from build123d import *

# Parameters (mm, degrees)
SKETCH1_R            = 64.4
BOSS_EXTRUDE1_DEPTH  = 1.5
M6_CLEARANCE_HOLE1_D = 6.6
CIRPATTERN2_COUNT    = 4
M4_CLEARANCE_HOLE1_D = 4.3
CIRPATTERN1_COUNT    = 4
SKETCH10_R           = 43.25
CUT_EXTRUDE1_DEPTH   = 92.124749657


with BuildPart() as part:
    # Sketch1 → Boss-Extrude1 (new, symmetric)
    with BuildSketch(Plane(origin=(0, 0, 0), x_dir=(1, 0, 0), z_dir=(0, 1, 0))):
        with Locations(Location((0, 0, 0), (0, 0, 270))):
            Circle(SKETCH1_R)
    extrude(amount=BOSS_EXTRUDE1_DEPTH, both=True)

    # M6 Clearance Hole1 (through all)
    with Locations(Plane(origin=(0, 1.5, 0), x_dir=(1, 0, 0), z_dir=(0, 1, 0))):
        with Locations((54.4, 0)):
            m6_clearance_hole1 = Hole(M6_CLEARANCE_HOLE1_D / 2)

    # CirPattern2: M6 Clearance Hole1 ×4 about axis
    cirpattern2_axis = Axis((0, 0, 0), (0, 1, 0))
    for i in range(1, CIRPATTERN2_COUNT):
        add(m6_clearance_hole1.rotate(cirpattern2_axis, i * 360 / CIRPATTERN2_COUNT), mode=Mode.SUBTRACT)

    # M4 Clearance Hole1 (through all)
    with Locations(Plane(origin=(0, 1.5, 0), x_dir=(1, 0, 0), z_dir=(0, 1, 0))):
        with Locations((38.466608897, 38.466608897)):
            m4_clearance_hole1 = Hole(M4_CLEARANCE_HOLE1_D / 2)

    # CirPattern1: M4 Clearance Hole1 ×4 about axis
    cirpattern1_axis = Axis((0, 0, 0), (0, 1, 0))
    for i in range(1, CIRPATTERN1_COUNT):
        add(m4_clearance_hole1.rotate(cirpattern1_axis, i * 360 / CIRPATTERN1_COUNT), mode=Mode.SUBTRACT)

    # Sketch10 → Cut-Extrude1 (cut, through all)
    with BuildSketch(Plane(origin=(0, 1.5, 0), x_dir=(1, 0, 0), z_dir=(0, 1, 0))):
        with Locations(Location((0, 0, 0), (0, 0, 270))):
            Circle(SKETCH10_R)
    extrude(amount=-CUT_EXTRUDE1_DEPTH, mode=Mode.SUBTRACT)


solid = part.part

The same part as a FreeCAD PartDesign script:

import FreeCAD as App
import Part
import Sketcher
Q = App.Units.Quantity

doc = App.newDocument("Part")
body = doc.addObject("PartDesign::Body", "Body")

sketch1 = doc.addObject("Sketcher::SketchObject", "Sketch")
body.addObject(sketch1)
sketch1.AttachmentSupport = (doc.XZ_Plane, [""])
sketch1.MapMode = "FlatFace"
sketch1.addGeometry(Part.Circle(App.Vector(0, 0, 0), App.Vector(0, 0, 1), 64.4), False)
sketch1.addConstraint([
    Sketcher.Constraint("Coincident", 0, 3, -1, 1),
    Sketcher.Constraint("Diameter", 0, Q("128.8 mm")),
])
pad1 = doc.addObject("PartDesign::Pad", "Pad")
body.addObject(pad1)
pad1.Profile = sketch1
pad1.Length = 3
pad1.Midplane = True

sketch2 = doc.addObject("Sketcher::SketchObject", "Sketch001")
body.addObject(sketch2)
sketch2.AttachmentSupport = (doc.XZ_Plane, [""])
sketch2.MapMode = "FlatFace"
sketch2.AttachmentOffset = App.Placement(App.Vector(0, 0, -1.5), App.Rotation())
sketch2.addGeometry(Part.Circle(App.Vector(54.4, 0, 0), App.Vector(0, 0, 1), 3.3), False)
sketch2.addConstraint([
    Sketcher.Constraint("PointOnObject", 0, 3, -1),
    Sketcher.Constraint("Diameter", 0, Q("6.6 mm")),
    Sketcher.Constraint("DistanceX", -1, 1, 0, 3, Q("54.4 mm")),
])
doc.recompute()
hole = doc.addObject("PartDesign::Hole", "Hole")
body.addObject(hole)
hole.Profile = sketch2
hole.ThreadType = "None"
hole.Diameter = 6.6
hole.DepthType = "ThroughAll"
hole.Reversed = True
doc.recompute()

polarpattern = doc.addObject("PartDesign::PolarPattern", "PolarPattern")
body.addObject(polarpattern)
polarpattern.Originals = [hole]
polarpattern.Axis = (doc.Y_Axis, [""])
polarpattern.Angle = 360
polarpattern.Occurrences = 4
body.Tip = polarpattern

sketch3 = doc.addObject("Sketcher::SketchObject", "Sketch002")
body.addObject(sketch3)
sketch3.AttachmentSupport = (doc.XZ_Plane, [""])
sketch3.MapMode = "FlatFace"
sketch3.AttachmentOffset = App.Placement(App.Vector(0, 0, -1.5), App.Rotation())
sketch3.addGeometry(Part.Circle(App.Vector(38.466609, -38.466609, 0), App.Vector(0, 0, 1), 2.15), False)
sketch3.addConstraint([
    Sketcher.Constraint("Diameter", 0, Q("4.3 mm")),
    Sketcher.Constraint("DistanceX", -1, 1, 0, 3, Q("38.466609 mm")),
    Sketcher.Constraint("DistanceY", 0, 3, -1, 1, Q("38.466609 mm")),
])
doc.recompute()
hole2 = doc.addObject("PartDesign::Hole", "Hole001")
body.addObject(hole2)
hole2.Profile = sketch3
hole2.ThreadType = "None"
hole2.Diameter = 4.3
hole2.DepthType = "ThroughAll"
hole2.Reversed = True
doc.recompute()

polarpattern2 = doc.addObject("PartDesign::PolarPattern", "PolarPattern001")
body.addObject(polarpattern2)
polarpattern2.Originals = [hole2]
polarpattern2.Axis = (doc.Y_Axis, [""])
polarpattern2.Angle = 360
polarpattern2.Occurrences = 4
body.Tip = polarpattern2

sketch4 = doc.addObject("Sketcher::SketchObject", "Sketch003")
body.addObject(sketch4)
sketch4.AttachmentSupport = (doc.XZ_Plane, [""])
sketch4.MapMode = "FlatFace"
sketch4.AttachmentOffset = App.Placement(App.Vector(0, 0, -1.5), App.Rotation())
sketch4.addGeometry(Part.Circle(App.Vector(0, 0, 0), App.Vector(0, 0, 1), 43.25), False)
sketch4.addConstraint([
    Sketcher.Constraint("Coincident", 0, 3, -1, 1),
    Sketcher.Constraint("Diameter", 0, Q("86.5 mm")),
])
pocket1 = doc.addObject("PartDesign::Pocket", "Pocket")
body.addObject(pocket1)
pocket1.Profile = sketch4
pocket1.Type = "ThroughAll"
pocket1.Reversed = True

doc.recompute()
